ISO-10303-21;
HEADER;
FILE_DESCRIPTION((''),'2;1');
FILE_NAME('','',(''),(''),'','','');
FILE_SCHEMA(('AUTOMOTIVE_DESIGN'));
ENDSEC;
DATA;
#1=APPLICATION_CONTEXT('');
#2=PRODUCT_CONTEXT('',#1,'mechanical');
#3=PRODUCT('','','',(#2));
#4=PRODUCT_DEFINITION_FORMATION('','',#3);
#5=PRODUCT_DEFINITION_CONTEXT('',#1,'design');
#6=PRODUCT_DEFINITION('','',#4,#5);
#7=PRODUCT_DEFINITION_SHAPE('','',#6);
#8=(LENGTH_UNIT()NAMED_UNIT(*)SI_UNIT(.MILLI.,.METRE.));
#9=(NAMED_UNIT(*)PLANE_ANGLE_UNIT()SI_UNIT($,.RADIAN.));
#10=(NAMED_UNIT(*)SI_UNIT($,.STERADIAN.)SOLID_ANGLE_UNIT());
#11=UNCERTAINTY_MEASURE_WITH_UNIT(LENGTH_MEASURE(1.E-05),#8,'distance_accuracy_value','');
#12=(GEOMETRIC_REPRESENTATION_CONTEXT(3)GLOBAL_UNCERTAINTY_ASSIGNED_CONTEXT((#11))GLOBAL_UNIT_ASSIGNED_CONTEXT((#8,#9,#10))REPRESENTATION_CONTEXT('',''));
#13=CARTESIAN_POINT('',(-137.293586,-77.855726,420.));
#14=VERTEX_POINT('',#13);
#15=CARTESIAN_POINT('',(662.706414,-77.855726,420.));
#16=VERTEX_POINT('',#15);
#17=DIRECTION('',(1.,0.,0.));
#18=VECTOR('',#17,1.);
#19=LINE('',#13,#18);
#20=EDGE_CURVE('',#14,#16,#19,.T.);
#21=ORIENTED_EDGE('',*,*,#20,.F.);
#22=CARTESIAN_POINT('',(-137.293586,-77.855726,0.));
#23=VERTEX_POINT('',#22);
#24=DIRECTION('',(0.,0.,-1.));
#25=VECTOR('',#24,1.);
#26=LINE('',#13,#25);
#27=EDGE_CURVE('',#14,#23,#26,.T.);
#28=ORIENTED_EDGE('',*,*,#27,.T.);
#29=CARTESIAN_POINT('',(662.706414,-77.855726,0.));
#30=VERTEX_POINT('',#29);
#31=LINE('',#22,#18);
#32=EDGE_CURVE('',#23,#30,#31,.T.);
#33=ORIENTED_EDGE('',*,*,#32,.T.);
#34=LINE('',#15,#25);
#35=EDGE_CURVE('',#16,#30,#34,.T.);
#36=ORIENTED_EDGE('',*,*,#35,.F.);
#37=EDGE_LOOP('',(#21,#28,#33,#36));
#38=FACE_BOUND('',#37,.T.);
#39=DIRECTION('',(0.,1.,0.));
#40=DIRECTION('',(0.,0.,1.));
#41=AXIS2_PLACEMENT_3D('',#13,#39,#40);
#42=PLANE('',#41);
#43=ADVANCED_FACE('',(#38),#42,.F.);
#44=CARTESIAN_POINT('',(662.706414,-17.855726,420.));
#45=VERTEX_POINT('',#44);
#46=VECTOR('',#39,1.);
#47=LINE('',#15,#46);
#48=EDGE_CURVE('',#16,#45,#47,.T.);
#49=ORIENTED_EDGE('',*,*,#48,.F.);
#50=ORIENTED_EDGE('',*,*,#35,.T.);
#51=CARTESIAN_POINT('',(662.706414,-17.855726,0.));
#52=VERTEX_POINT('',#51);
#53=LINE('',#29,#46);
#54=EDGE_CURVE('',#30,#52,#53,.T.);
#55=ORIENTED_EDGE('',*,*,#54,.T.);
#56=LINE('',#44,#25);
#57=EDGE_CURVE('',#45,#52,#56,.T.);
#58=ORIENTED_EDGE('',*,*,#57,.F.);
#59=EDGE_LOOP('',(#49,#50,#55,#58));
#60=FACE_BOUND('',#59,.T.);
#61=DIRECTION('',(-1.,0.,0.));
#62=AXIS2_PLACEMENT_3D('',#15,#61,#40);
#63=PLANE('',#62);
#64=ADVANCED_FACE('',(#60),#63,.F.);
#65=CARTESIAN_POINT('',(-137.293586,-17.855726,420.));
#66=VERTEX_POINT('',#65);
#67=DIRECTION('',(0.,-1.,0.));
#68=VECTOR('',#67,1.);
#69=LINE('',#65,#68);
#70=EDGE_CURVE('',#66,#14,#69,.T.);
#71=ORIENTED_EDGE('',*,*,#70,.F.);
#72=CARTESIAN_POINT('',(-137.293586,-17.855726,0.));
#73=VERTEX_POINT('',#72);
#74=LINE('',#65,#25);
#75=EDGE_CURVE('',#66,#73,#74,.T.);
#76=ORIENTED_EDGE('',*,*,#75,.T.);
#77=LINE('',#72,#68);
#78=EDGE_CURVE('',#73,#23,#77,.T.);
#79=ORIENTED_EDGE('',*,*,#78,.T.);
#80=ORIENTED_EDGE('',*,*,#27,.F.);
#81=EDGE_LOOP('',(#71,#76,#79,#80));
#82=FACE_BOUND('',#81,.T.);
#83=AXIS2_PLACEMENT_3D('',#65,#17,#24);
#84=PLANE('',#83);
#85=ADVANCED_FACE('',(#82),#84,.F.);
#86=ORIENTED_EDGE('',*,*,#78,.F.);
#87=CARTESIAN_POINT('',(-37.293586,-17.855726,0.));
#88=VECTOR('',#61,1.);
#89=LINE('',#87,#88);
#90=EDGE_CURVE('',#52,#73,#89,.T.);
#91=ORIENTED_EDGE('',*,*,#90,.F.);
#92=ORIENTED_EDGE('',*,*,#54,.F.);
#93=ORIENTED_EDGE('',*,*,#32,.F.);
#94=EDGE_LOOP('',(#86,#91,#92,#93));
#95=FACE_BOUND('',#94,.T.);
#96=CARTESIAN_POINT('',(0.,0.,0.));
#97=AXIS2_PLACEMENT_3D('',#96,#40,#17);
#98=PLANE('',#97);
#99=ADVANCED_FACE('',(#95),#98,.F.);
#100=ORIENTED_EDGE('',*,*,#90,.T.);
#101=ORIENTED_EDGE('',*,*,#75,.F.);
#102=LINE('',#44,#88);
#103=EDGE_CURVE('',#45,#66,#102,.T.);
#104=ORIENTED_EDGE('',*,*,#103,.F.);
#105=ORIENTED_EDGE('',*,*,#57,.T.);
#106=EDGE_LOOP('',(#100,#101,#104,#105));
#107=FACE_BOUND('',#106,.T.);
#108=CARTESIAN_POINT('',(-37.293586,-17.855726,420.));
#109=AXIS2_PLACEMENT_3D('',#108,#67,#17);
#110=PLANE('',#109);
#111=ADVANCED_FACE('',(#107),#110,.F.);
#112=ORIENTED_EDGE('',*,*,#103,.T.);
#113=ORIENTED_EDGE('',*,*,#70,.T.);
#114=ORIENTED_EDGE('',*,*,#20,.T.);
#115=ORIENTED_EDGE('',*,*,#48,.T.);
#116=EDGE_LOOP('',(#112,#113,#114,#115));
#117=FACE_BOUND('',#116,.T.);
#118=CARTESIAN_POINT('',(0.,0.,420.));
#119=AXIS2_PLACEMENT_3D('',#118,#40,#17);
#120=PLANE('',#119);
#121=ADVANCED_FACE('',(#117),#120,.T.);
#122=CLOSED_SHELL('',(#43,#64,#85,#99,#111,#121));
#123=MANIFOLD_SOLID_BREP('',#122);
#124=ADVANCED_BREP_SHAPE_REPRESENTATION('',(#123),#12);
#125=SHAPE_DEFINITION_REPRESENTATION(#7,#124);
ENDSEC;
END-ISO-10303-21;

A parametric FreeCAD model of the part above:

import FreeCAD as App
import Part
import Sketcher

doc = App.newDocument("Part")
params = doc.addObject("Spreadsheet::Sheet", "Params")
for row, (alias, value) in enumerate([
    ("sketch1_width", "800 mm"),
    ("sketch1_height", "60 mm"),
    ("pad1_length", "420 mm"),
], start=1):
    params.set(f"A{row}", alias)
    params.set(f"B{row}", "=" + value)
    params.setAlias(f"B{row}", alias)

body = doc.addObject("PartDesign::Body", "Body")

# Sketch on XY plane
sketch1 = body.newObject("Sketcher::SketchObject", "Sketch")
sketch1.AttachmentSupport = (doc.getObject("XY_Plane"), [""])
sketch1.MapMode = "FlatFace"
sketch1.addGeometry([
    Part.LineSegment(App.Vector(-137, -78, 0), App.Vector(663, -78, 0)),
    Part.LineSegment(App.Vector(663, -78, 0), App.Vector(663, -18, 0)),
    Part.LineSegment(App.Vector(663, -18, 0), App.Vector(-137, -18, 0)),
    Part.LineSegment(App.Vector(-137, -18, 0), App.Vector(-137, -78, 0)),
], False)
sketch1.addConstraint([
    Sketcher.Constraint("Coincident", 0, 2, 1, 1),
    Sketcher.Constraint("Coincident", 1, 2, 2, 1),
    Sketcher.Constraint("Coincident", 2, 2, 3, 1),
    Sketcher.Constraint("Coincident", 3, 2, 0, 1),
    Sketcher.Constraint("Horizontal", 0),
    Sketcher.Constraint("Vertical", 1),
    Sketcher.Constraint("Horizontal", 2),
    Sketcher.Constraint("Vertical", 3),
    Sketcher.Constraint("DistanceX", 0, 1, 0, 2, 800.0),
    Sketcher.Constraint("DistanceY", 1, 1, 1, 2, 60.0),
    Sketcher.Constraint("DistanceX", -1, 1, 0, 2, 662.706414),
    Sketcher.Constraint("DistanceY", 0, 2, -1, 1, 77.855726),
])
sketch1.setExpression("Constraints[8]", "Params.sketch1_width")
sketch1.setExpression("Constraints[9]", "Params.sketch1_height")
pad1 = body.newObject("PartDesign::Pad", "Pad")
pad1.Profile = sketch1
pad1.setExpression("Length", "Params.pad1_length")

doc.recompute()
